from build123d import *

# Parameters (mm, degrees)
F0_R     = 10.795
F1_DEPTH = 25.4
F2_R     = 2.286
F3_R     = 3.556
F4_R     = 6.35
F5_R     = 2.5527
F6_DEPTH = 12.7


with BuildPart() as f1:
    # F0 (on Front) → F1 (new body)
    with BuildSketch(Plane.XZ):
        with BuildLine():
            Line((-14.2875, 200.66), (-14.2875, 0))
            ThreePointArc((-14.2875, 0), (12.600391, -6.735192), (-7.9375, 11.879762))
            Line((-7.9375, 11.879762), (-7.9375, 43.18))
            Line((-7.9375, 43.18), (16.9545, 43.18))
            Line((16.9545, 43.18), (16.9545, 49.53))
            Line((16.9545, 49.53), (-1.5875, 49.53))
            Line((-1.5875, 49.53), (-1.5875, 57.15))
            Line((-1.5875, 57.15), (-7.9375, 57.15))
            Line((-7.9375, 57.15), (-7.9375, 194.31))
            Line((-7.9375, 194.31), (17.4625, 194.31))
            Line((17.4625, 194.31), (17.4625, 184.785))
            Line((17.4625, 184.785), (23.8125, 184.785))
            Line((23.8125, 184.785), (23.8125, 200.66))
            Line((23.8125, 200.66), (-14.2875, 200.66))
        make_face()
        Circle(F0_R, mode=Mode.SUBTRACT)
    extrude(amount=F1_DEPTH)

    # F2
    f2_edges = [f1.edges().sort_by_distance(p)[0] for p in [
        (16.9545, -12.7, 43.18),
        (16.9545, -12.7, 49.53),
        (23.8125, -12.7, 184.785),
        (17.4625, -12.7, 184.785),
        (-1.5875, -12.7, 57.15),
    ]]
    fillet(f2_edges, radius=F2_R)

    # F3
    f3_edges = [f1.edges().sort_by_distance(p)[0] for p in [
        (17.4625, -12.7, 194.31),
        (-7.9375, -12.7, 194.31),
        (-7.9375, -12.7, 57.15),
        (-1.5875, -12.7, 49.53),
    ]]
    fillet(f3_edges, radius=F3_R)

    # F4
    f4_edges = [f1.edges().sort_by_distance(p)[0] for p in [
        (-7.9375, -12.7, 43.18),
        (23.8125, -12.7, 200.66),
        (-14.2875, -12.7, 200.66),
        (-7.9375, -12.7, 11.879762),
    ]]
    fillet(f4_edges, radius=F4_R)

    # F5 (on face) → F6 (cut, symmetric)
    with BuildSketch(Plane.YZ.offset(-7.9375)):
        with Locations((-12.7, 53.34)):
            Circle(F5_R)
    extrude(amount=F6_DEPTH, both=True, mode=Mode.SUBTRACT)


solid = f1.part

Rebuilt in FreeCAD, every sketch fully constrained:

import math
import FreeCAD as App
import Part
import Sketcher
Q = App.Units.Quantity


def edges_at(feature, points):
    """Names of the edges that pass closest to the given points."""
    edges = feature.Shape.Edges
    near = lambda p: min(range(len(edges)), key=lambda i: edges[i].distToShape(Part.Vertex(*p))[0])
    return sorted({f"Edge{near(p) + 1}" for p in points})

doc = App.newDocument("Part")
body = doc.addObject("PartDesign::Body", "Body")

sketch1 = body.newObject("Sketcher::SketchObject", "Sketch")
sketch1.AttachmentSupport = (doc.getObject("XZ_Plane"), [""])
sketch1.MapMode = "FlatFace"
sketch1.addGeometry([
    Part.LineSegment(App.Vector(-14, 201, 0), App.Vector(-14, 0, 0)),
    Part.ArcOfCircle(Part.Circle(App.Vector(0, 0, 0), App.Vector(0, 0, 1), 14), math.radians(180), math.radians(484)),
    Part.LineSegment(App.Vector(-8, 12, 0), App.Vector(-8, 43, 0)),
    Part.LineSegment(App.Vector(-8, 43, 0), App.Vector(17, 43, 0)),
    Part.LineSegment(App.Vector(17, 43, 0), App.Vector(17, 50, 0)),
    Part.LineSegment(App.Vector(17, 50, 0), App.Vector(-2, 50, 0)),
    Part.LineSegment(App.Vector(-2, 50, 0), App.Vector(-2, 57, 0)),
    Part.LineSegment(App.Vector(-2, 57, 0), App.Vector(-8, 57, 0)),
    Part.LineSegment(App.Vector(-8, 57, 0), App.Vector(-8, 194, 0)),
    Part.LineSegment(App.Vector(-8, 194, 0), App.Vector(17, 194, 0)),
    Part.LineSegment(App.Vector(17, 194, 0), App.Vector(17, 185, 0)),
    Part.LineSegment(App.Vector(17, 185, 0), App.Vector(24, 185, 0)),
    Part.LineSegment(App.Vector(24, 185, 0), App.Vector(24, 201, 0)),
    Part.LineSegment(App.Vector(24, 201, 0), App.Vector(-14, 201, 0)),
    Part.Circle(App.Vector(0, 0, 0), App.Vector(0, 0, 1), 11),
], False)
sketch1.addConstraint([
    Sketcher.Constraint("Tangent", 0, 2, 1, 1),
    Sketcher.Constraint("Coincident", 1, 2, 2, 1),
    Sketcher.Constraint("Coincident", 2, 2, 3, 1),
    Sketcher.Constraint("Coincident", 3, 2, 4, 1),
    Sketcher.Constraint("Coincident", 4, 2, 5, 1),
    Sketcher.Constraint("Coincident", 5, 2, 6, 1),
    Sketcher.Constraint("Coincident", 6, 2, 7, 1),
    Sketcher.Constraint("Coincident", 7, 2, 8, 1),
    Sketcher.Constraint("Coincident", 8, 2, 9, 1),
    Sketcher.Constraint("Coincident", 9, 2, 10, 1),
    Sketcher.Constraint("Coincident", 10, 2, 11, 1),
    Sketcher.Constraint("Coincident", 11, 2, 12, 1),
    Sketcher.Constraint("Coincident", 12, 2, 13, 1),
    Sketcher.Constraint("Coincident", 13, 2, 0, 1),
    Sketcher.Constraint("Vertical", 0),
    Sketcher.Constraint("Vertical", 2),
    Sketcher.Constraint("Horizontal", 3),
    Sketcher.Constraint("Vertical", 4),
    Sketcher.Constraint("Horizontal", 5),
    Sketcher.Constraint("Vertical", 6),
    Sketcher.Constraint("Horizontal", 7),
    Sketcher.Constraint("Vertical", 8),
    Sketcher.Constraint("Horizontal", 9),
    Sketcher.Constraint("Vertical", 10),
    Sketcher.Constraint("Horizontal", 11),
    Sketcher.Constraint("Vertical", 12),
    Sketcher.Constraint("Horizontal", 13),
    Sketcher.Constraint("Coincident", 1, 3, -1, 1),
    Sketcher.Constraint("Coincident", 14, 3, -1, 1),
    Sketcher.Constraint("Vertical", 2, 2, 7, 2),
    Sketcher.Constraint("Equal", 7, 11),
    Sketcher.Constraint("Equal", 11, 4),
    Sketcher.Constraint("Diameter", 14, Q("0.85 in")),
    Sketcher.Constraint("DistanceX", 9, 1, 9, 2, Q("1 in")),
    Sketcher.Constraint("DistanceX", 13, 2, 13, 1, Q("1.5 in")),
    Sketcher.Constraint("DistanceY", 0, 2, 0, 1, Q("7.9 in")),
    Sketcher.Constraint("DistanceY", 6, 1, 6, 2, Q("0.3 in")),
    Sketcher.Constraint("DistanceY", 8, 1, 8, 2, Q("5.4 in")),
    Sketcher.Constraint("Radius", 1, Q("0.5625 in")),
    Sketcher.Constraint("DistanceX", 3, 1, 3, 2, Q("0.98 in")),
    Sketcher.Constraint("DistanceX", 5, 2, 5, 1, Q("0.73 in")),
    Sketcher.Constraint("DistanceY", -1, 1, 2, 2, Q("1.7 in")),
    Sketcher.Constraint("DistanceY", 10, 2, 10, 1, Q("0.375 in")),
])
pad1 = body.newObject("PartDesign::Pad", "Pad")
pad1.Profile = sketch1
pad1.Length = Q("1 in")
doc.recompute()

fillet = body.newObject("PartDesign::Fillet", "Fillet")
fillet.Base = (pad1, edges_at(pad1, [
    (16.954, -12.7, 43.18),
    (16.954, -12.7, 49.53),
    (23.812, -12.7, 184.785),
    (17.462, -12.7, 184.785),
    (-1.587, -12.7, 57.15),
]))
fillet.Radius = Q("0.09 in")
doc.recompute()

fillet2 = body.newObject("PartDesign::Fillet", "Fillet001")
fillet2.Base = (fillet, edges_at(fillet, [
    (17.462, -12.7, 194.31),
    (-7.938, -12.7, 194.31),
    (-7.938, -12.7, 57.15),
    (-1.587, -12.7, 49.53),
]))
fillet2.Radius = Q("0.14 in")
doc.recompute()

fillet3 = body.newObject("PartDesign::Fillet", "Fillet002")
fillet3.Base = (fillet2, edges_at(fillet2, [
    (-7.938, -12.7, 43.18),
    (23.812, -12.7, 200.66),
    (-14.287, -12.7, 200.66),
    (-7.938, -12.7, 11.88),
]))
fillet3.Radius = Q("0.25 in")

sketch2 = body.newObject("Sketcher::SketchObject", "Sketch001")
sketch2.AttachmentSupport = (doc.getObject("YZ_Plane"), [""])
sketch2.MapMode = "FlatFace"
sketch2.AttachmentOffset = App.Placement(App.Vector(0, 0, -0.3125 * 25.4), App.Rotation())
sketch2.addGeometry(Part.Circle(App.Vector(-12.7, 53.3, 0), App.Vector(0, 0, 1), 2.6), False)
sketch2.addConstraint([
    Sketcher.Constraint("Diameter", 0, Q("0.201 in")),
    Sketcher.Constraint("DistanceX", 0, 3, -1, 1, Q("0.5 in")),
    Sketcher.Constraint("DistanceY", -1, 1, 0, 3, Q("2.1 in")),
])
pocket1 = body.newObject("PartDesign::Pocket", "Pocket")
pocket1.Profile = sketch2
pocket1.Length = Q("1 in")
pocket1.Midplane = True

doc.recompute()
